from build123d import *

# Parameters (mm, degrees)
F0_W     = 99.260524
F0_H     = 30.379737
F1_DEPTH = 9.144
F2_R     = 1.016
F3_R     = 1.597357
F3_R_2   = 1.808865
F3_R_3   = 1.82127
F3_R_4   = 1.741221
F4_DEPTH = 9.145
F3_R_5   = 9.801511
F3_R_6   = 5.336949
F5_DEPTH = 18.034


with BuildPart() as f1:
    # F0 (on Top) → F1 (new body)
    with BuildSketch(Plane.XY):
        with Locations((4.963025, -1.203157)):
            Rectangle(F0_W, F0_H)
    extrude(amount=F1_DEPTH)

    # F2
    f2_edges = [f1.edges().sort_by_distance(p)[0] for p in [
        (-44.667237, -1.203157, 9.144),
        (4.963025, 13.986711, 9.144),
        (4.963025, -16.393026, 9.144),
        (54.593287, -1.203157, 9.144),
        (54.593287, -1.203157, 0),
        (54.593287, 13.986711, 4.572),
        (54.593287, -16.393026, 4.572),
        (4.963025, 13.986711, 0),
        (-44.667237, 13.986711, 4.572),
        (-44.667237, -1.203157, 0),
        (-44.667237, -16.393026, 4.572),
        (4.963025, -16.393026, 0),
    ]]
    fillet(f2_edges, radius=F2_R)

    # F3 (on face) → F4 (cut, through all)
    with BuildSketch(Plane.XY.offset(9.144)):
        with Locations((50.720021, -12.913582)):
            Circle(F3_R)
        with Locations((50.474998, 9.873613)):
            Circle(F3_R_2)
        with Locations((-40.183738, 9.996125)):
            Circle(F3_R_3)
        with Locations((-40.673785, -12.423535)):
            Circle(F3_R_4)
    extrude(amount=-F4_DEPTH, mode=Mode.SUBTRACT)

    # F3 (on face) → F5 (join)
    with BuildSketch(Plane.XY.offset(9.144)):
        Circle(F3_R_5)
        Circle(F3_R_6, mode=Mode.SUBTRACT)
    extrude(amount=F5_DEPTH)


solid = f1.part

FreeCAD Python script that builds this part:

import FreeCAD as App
import Part
import Sketcher
from FreeCAD import Vector
Q = App.Units.Quantity

doc = App.newDocument("Part")
body = doc.addObject("PartDesign::Body", "Body")

sketch1 = doc.addObject("Sketcher::SketchObject", "Sketch")
body.addObject(sketch1)
sketch1.AttachmentSupport = (doc.XY_Plane, [""])
sketch1.MapMode = "FlatFace"
sketch1.addGeometry(Part.LineSegment(Vector(-45, 14, 0), Vector(-45, -16, 0)), False)
sketch1.addGeometry(Part.LineSegment(Vector(-45, -16, 0), Vector(55, -16, 0)), False)
sketch1.addGeometry(Part.LineSegment(Vector(55, -16, 0), Vector(55, 14, 0)), False)
sketch1.addGeometry(Part.LineSegment(Vector(55, 14, 0), Vector(-45, 14, 0)), False)
sketch1.addConstraint(Sketcher.Constraint("Coincident", 0, 2, 1, 1))
sketch1.addConstraint(Sketcher.Constraint("Coincident", 1, 2, 2, 1))
sketch1.addConstraint(Sketcher.Constraint("Coincident", 2, 2, 3, 1))
sketch1.addConstraint(Sketcher.Constraint("Coincident", 3, 2, 0, 1))
sketch1.addConstraint(Sketcher.Constraint("Vertical", 0))
sketch1.addConstraint(Sketcher.Constraint("Horizontal", 1))
sketch1.addConstraint(Sketcher.Constraint("Vertical", 2))
sketch1.addConstraint(Sketcher.Constraint("Horizontal", 3))
sketch1.addConstraint(Sketcher.Constraint("DistanceX", 1, 1, 1, 2, 99.260524))
sketch1.addConstraint(Sketcher.Constraint("DistanceY", 0, 2, 0, 1, 30.379737))
sketch1.addConstraint(Sketcher.Constraint("DistanceY", -1, 1, 2, 2, 13.986712))
sketch1.addConstraint(Sketcher.Constraint("DistanceX", 0, 2, -1, 1, 44.667237))
pad1 = doc.addObject("PartDesign::Pad", "Pad")
body.addObject(pad1)
pad1.Profile = sketch1
pad1.Length = Q("0.36 in")
doc.recompute()

fillet = doc.addObject("PartDesign::Fillet", "Fillet")
body.addObject(fillet)
fillet.Base = (pad1, ["Edge1"])
fillet.UseAllEdges = True
fillet.Radius = Q("0.04 in")

sketch2 = doc.addObject("Sketcher::SketchObject", "Sketch001")
body.addObject(sketch2)
sketch2.AttachmentSupport = (doc.XY_Plane, [""])
sketch2.MapMode = "FlatFace"
sketch2.AttachmentOffset = App.Placement(Vector(0, 0, 0.36 * 25.4), App.Rotation())
sketch2.addGeometry(Part.Circle(Vector(50.7, -12.9, 0), Vector(0, 0, 1), 1.6), False)
sketch2.addGeometry(Part.Circle(Vector(50.5, 9.9, 0), Vector(0, 0, 1), 1.8), False)
sketch2.addGeometry(Part.Circle(Vector(-40.2, 10, 0), Vector(0, 0, 1), 1.8), False)
sketch2.addGeometry(Part.Circle(Vector(-40.7, -12.4, 0), Vector(0, 0, 1), 1.7), False)
sketch2.addConstraint(Sketcher.Constraint("Diameter", 1, 3.61773))
sketch2.addConstraint(Sketcher.Constraint("Diameter", 2, 3.64254))
sketch2.addConstraint(Sketcher.Constraint("Diameter", 3, 3.482442))
sketch2.addConstraint(Sketcher.Constraint("Diameter", 0, 3.194714))
sketch2.addConstraint(Sketcher.Constraint("DistanceX", -1, 1, 0, 3, 50.720021))
sketch2.addConstraint(Sketcher.Constraint("DistanceY", 1, 3, 2, 3, 0.122512))
sketch2.addConstraint(Sketcher.Constraint("DistanceX", 2, 3, 0, 3, 90.903759))
sketch2.addConstraint(Sketcher.Constraint("DistanceY", 3, 3, 2, 3, 22.41966))
sketch2.addConstraint(Sketcher.Constraint("DistanceY", 0, 3, -1, 1, 12.913582))
sketch2.addConstraint(Sketcher.Constraint("DistanceX", -1, 1, 1, 3, 50.474998))
sketch2.addConstraint(Sketcher.Constraint("DistanceY", -1, 1, 1, 3, 9.873613))
sketch2.addConstraint(Sketcher.Constraint("DistanceX", 3, 3, -1, 1, 40.673785))
pocket1 = doc.addObject("PartDesign::Pocket", "Pocket")
body.addObject(pocket1)
pocket1.Profile = sketch2
pocket1.Type = "ThroughAll"

sketch3 = doc.addObject("Sketcher::SketchObject", "Sketch002")
body.addObject(sketch3)
sketch3.AttachmentSupport = (doc.XY_Plane, [""])
sketch3.MapMode = "FlatFace"
sketch3.AttachmentOffset = App.Placement(Vector(0, 0, 0.36 * 25.4), App.Rotation())
sketch3.addGeometry(Part.Circle(Vector(0, 0, 0), Vector(0, 0, 1), 10), False)
sketch3.addGeometry(Part.Circle(Vector(0, 0, 0), Vector(0, 0, 1), 5), False)
sketch3.addConstraint(Sketcher.Constraint("Coincident", 0, 3, -1, 1))
sketch3.addConstraint(Sketcher.Constraint("Coincident", 1, 3, -1, 1))
sketch3.addConstraint(Sketcher.Constraint("Diameter", 0, 19.603022))
sketch3.addConstraint(Sketcher.Constraint("Diameter", 1, 10.673898))
pad2 = doc.addObject("PartDesign::Pad", "Pad001")
body.addObject(pad2)
pad2.Profile = sketch3
pad2.Length = Q("0.71 in")

doc.recompute()
